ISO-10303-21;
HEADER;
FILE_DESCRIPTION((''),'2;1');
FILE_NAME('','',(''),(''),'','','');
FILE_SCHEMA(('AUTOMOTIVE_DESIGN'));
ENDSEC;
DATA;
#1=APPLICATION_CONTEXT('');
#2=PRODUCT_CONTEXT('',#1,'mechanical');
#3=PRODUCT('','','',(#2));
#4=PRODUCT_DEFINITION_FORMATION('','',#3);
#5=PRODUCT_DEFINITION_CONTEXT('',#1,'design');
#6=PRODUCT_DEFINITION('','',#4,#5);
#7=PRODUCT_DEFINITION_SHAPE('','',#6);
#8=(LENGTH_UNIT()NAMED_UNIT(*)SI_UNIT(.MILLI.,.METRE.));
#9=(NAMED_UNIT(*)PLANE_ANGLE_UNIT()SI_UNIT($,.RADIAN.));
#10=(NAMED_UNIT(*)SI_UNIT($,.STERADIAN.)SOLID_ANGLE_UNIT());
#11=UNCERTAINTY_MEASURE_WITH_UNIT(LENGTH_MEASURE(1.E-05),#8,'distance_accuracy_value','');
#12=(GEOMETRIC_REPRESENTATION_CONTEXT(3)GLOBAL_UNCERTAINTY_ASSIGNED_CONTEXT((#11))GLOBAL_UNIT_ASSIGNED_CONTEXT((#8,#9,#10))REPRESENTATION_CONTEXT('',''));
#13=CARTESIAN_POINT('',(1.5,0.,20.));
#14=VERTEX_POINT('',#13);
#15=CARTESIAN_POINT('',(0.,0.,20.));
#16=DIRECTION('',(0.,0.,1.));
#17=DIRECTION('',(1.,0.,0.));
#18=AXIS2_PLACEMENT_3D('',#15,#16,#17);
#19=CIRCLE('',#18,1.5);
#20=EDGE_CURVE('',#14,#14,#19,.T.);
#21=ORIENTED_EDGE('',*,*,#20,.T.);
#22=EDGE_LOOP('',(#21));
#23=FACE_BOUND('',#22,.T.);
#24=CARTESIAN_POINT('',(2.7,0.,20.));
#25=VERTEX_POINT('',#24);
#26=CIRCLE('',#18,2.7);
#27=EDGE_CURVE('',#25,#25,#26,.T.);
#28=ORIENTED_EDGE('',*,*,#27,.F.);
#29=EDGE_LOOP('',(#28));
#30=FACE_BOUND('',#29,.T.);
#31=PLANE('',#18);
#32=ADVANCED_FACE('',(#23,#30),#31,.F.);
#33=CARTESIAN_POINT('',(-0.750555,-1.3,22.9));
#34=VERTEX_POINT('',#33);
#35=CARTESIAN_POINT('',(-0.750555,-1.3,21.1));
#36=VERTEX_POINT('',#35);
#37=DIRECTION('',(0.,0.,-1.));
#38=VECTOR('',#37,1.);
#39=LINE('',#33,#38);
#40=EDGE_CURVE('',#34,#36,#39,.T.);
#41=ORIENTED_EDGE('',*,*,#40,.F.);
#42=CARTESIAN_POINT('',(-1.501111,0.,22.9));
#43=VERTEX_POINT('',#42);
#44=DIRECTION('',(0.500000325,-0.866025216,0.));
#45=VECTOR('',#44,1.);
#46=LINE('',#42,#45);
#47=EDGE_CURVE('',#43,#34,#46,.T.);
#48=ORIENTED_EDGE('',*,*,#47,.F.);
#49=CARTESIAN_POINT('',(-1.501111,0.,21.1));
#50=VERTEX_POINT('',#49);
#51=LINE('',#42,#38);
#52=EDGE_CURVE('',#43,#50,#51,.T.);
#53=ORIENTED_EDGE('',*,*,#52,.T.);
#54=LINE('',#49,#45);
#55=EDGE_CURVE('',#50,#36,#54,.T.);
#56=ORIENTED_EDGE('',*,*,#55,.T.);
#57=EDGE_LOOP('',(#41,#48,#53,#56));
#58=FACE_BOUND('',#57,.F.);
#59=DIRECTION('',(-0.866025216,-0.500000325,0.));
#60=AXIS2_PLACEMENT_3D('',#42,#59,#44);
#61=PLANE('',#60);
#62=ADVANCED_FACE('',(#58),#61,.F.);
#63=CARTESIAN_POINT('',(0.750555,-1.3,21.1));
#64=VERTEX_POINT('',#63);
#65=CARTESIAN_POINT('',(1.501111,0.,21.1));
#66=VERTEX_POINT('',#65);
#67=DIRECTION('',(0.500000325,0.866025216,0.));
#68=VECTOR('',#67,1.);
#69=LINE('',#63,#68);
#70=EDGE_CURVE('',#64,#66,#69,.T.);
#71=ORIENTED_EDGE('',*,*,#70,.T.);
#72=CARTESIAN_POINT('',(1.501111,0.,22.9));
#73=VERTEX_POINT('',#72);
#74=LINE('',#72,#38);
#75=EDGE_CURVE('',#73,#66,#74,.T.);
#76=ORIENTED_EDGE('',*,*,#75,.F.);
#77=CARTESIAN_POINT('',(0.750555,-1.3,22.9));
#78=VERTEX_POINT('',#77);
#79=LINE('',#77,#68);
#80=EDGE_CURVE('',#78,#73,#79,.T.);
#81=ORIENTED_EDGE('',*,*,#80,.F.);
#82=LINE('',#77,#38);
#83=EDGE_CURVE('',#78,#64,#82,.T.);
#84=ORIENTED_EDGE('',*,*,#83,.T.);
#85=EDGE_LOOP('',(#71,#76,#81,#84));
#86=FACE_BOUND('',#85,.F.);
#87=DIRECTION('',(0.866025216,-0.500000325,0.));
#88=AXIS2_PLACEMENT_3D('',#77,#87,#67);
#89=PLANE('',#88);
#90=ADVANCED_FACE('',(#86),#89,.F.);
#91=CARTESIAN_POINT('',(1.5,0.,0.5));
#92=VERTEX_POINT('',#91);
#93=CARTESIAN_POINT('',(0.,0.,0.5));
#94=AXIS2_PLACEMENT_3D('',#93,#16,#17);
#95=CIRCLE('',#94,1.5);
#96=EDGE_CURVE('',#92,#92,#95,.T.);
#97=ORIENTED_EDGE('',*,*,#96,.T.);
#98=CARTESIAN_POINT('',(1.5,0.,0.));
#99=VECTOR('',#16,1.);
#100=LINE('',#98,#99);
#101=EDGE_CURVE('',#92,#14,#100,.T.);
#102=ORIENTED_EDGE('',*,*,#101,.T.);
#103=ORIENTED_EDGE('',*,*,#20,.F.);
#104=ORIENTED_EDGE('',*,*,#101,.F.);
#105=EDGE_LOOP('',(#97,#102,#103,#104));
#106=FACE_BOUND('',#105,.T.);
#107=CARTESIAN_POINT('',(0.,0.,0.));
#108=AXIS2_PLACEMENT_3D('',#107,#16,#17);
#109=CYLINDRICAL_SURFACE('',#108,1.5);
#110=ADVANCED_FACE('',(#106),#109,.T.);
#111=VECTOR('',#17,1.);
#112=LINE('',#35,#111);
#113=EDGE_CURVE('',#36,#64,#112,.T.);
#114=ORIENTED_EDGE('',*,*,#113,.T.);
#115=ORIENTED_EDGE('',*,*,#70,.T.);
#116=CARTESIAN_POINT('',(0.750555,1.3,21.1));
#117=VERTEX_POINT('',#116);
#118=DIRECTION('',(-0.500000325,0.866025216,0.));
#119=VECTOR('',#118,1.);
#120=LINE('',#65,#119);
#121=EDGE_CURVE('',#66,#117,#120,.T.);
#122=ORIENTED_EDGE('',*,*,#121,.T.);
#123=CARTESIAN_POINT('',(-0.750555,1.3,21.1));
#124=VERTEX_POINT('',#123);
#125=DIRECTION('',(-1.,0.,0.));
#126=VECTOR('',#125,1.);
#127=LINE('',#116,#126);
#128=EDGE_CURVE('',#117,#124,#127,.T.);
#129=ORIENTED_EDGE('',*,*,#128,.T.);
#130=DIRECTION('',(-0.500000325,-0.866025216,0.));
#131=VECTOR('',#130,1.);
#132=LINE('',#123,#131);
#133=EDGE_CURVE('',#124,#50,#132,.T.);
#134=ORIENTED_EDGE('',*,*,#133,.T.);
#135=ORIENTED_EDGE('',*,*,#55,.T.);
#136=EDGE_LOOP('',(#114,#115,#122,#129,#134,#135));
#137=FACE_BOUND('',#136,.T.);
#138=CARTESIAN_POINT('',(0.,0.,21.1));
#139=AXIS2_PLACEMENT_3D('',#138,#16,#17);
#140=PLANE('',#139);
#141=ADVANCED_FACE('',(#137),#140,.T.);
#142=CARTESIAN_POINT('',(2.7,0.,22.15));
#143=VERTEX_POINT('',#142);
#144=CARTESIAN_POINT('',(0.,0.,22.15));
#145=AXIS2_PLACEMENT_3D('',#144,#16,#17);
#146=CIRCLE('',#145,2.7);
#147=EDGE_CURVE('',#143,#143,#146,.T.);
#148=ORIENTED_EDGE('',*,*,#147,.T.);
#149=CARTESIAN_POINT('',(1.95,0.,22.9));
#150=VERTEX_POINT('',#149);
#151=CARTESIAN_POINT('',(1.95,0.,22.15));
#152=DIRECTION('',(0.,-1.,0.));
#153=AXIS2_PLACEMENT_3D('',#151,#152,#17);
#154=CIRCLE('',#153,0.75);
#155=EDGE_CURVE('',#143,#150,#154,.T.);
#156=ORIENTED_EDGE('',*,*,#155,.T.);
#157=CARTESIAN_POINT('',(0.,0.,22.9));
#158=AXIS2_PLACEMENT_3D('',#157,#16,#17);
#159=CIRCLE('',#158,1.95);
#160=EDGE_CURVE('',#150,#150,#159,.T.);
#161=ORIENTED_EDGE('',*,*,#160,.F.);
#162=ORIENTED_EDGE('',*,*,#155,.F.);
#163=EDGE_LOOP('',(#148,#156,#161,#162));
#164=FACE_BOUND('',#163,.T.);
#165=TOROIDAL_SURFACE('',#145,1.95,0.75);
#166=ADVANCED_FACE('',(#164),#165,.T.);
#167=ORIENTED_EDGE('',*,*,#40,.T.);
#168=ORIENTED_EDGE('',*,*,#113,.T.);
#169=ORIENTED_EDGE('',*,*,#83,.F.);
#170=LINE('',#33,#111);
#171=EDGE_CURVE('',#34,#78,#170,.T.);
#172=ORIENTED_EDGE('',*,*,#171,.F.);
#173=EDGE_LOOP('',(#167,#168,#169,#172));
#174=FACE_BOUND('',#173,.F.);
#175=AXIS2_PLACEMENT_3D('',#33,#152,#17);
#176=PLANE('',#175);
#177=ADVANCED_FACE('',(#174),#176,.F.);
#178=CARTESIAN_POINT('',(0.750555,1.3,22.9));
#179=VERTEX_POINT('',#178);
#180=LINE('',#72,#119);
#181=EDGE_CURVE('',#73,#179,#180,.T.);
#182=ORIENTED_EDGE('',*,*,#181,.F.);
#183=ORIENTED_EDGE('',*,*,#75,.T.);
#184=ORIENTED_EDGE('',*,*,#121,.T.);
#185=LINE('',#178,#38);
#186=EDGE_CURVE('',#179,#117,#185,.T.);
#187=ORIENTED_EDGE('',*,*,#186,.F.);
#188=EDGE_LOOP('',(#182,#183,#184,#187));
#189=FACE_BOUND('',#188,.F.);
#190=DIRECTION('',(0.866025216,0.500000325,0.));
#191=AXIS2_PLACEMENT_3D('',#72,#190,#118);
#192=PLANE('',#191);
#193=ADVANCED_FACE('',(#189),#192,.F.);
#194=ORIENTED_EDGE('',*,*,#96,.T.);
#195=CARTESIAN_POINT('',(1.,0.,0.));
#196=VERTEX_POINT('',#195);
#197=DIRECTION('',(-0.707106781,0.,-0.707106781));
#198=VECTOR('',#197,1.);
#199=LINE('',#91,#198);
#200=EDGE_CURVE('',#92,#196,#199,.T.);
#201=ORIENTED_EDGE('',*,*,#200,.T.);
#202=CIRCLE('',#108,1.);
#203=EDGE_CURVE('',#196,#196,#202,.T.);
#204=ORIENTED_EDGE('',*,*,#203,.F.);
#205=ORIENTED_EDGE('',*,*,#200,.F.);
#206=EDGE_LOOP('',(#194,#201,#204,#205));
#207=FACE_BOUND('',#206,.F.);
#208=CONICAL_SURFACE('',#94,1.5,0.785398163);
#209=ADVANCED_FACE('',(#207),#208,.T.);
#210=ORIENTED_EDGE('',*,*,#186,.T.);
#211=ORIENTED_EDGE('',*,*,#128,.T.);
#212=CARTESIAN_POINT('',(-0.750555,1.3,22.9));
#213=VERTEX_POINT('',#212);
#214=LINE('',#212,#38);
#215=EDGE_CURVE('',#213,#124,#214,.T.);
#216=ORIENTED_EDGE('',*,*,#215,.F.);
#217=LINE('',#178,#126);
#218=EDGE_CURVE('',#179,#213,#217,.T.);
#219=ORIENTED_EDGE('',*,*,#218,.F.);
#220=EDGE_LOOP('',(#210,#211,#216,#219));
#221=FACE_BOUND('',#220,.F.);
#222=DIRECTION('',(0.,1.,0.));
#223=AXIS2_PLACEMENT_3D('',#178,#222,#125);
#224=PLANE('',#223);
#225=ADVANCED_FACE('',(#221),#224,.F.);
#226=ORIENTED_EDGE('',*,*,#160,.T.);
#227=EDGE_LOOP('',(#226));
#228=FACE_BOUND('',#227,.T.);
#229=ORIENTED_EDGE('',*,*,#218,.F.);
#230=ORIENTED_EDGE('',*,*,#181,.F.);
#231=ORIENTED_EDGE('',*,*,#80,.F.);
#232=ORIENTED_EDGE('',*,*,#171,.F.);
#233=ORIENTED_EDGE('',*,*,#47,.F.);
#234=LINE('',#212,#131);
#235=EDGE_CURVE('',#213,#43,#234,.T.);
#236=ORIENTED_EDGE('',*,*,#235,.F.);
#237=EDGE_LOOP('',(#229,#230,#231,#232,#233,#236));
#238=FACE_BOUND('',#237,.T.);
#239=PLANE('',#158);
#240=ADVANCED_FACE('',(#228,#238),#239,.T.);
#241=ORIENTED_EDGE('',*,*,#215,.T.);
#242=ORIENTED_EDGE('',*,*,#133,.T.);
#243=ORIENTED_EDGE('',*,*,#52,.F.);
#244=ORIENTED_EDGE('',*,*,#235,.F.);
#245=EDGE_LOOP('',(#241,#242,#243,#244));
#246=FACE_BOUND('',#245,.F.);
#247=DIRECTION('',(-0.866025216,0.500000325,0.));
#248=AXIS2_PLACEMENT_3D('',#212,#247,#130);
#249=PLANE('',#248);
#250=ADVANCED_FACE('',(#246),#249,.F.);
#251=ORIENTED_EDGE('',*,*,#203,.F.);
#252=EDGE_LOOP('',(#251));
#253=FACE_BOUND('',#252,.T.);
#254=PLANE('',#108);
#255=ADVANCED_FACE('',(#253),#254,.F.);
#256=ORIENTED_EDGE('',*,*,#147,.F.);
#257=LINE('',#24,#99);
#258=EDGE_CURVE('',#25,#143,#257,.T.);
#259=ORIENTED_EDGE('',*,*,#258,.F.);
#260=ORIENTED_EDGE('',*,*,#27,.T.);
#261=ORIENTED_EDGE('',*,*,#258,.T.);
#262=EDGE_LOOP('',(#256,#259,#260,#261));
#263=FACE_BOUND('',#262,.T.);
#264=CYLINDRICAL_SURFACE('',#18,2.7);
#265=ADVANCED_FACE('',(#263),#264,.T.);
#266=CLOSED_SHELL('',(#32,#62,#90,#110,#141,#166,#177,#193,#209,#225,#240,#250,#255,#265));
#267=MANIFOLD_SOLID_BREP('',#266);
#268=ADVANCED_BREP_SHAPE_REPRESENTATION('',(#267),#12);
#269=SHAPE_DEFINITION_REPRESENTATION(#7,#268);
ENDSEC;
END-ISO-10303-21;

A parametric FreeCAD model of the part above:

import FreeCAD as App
import Part
import Sketcher


def edges_at(feature, points):
    """Names of the edges that pass closest to the given points."""
    edges = feature.Shape.Edges
    near = lambda p: min(range(len(edges)), key=lambda i: edges[i].distToShape(Part.Vertex(*p))[0])
    return sorted({f"Edge{near(p) + 1}" for p in points})


def add_polygon(sketch, points):
    """Adds a closed chain of lines whose ends are joined by coincident constraints."""
    first, n = sketch.GeometryCount, len(points)
    for a, b in zip(points, points[1:] + points[:1]):
        sketch.addGeometry(Part.LineSegment(App.Vector(*a, 0), App.Vector(*b, 0)), False)
    for i in range(n):
        sketch.addConstraint(Sketcher.Constraint("Coincident", first + i, 2, first + (i + 1) % n, 1))

doc = App.newDocument("Part")
body = doc.addObject("PartDesign::Body", "Body")

sketch1 = body.newObject("Sketcher::SketchObject", "Sketch")
sketch1.AttachmentSupport = (doc.getObject("XZ_Plane"), [""])
sketch1.MapMode = "FlatFace"
add_polygon(sketch1, [(0, 22.9), (0, 0), (1.5, 0), (1.5, 20), (2.7, 20), (2.7, 22.9)])
sketch1.addConstraint([
    Sketcher.Constraint("Vertical", 0),
    Sketcher.Constraint("Horizontal", 1),
    Sketcher.Constraint("Vertical", 2),
    Sketcher.Constraint("Horizontal", 3),
    Sketcher.Constraint("Vertical", 4),
    Sketcher.Constraint("Horizontal", 5),
    Sketcher.Constraint("Coincident", 0, 2, -1, 1),
    Sketcher.Constraint("DistanceY", 2, 1, 2, 2, 20.0),
    Sketcher.Constraint("DistanceX", 1, 1, 1, 2, 1.5),
    Sketcher.Constraint("DistanceX", 3, 1, 3, 2, 1.2),
    Sketcher.Constraint("DistanceY", 0, 2, 0, 1, 22.9),
])
revolution = body.newObject("PartDesign::Revolution", "Revolution")
revolution.Profile = sketch1
revolution.ReferenceAxis = (sketch1, ["V_Axis"])
revolution.Angle = 360

sketch2 = body.newObject("Sketcher::SketchObject", "Sketch001")
sketch2.AttachmentSupport = (doc.getObject("XY_Plane"), [""])
sketch2.MapMode = "FlatFace"
sketch2.AttachmentOffset = App.Placement(App.Vector(0, 0, 22.9), App.Rotation())
add_polygon(sketch2, [(0.750555, 1.3), (-0.750555, 1.3), (-1.501111, 0), (-0.750555, -1.3), (0.750555, -1.3), (1.501111, 0)])
sketch2.addConstraint([
    Sketcher.Constraint("Horizontal", 0),
    Sketcher.Constraint("Horizontal", 3),
    Sketcher.Constraint("Symmetric", 0, 2, 3, 2, -1, 1),
    Sketcher.Constraint("Symmetric", 1, 2, 4, 2, -1, 1),
    Sketcher.Constraint("PointOnObject", 1, 2, -1),
    Sketcher.Constraint("Parallel", 2, 5),
    Sketcher.Constraint("Vertical", 0, 2, 2, 2),
    Sketcher.Constraint("DistanceY", -1, 1, 0, 2, 1.3),
    Sketcher.Constraint("DistanceX", 0, 2, 0, 1, 1.50111),
    Sketcher.Constraint("Distance", 1, 1.501111),
])
pocket1 = body.newObject("PartDesign::Pocket", "Pocket")
pocket1.Profile = sketch2
pocket1.Length = 1.8
doc.recompute()

fillet = body.newObject("PartDesign::Fillet", "Fillet")
fillet.Base = (pocket1, edges_at(pocket1, [(-2.7, 0, 22.9)]))
fillet.Radius = 0.75
doc.recompute()

chamfer = body.newObject("PartDesign::Chamfer", "Chamfer")
chamfer.Base = (fillet, edges_at(fillet, [(-1.5, 0, 0)]))
chamfer.Size = 0.5

doc.recompute()
